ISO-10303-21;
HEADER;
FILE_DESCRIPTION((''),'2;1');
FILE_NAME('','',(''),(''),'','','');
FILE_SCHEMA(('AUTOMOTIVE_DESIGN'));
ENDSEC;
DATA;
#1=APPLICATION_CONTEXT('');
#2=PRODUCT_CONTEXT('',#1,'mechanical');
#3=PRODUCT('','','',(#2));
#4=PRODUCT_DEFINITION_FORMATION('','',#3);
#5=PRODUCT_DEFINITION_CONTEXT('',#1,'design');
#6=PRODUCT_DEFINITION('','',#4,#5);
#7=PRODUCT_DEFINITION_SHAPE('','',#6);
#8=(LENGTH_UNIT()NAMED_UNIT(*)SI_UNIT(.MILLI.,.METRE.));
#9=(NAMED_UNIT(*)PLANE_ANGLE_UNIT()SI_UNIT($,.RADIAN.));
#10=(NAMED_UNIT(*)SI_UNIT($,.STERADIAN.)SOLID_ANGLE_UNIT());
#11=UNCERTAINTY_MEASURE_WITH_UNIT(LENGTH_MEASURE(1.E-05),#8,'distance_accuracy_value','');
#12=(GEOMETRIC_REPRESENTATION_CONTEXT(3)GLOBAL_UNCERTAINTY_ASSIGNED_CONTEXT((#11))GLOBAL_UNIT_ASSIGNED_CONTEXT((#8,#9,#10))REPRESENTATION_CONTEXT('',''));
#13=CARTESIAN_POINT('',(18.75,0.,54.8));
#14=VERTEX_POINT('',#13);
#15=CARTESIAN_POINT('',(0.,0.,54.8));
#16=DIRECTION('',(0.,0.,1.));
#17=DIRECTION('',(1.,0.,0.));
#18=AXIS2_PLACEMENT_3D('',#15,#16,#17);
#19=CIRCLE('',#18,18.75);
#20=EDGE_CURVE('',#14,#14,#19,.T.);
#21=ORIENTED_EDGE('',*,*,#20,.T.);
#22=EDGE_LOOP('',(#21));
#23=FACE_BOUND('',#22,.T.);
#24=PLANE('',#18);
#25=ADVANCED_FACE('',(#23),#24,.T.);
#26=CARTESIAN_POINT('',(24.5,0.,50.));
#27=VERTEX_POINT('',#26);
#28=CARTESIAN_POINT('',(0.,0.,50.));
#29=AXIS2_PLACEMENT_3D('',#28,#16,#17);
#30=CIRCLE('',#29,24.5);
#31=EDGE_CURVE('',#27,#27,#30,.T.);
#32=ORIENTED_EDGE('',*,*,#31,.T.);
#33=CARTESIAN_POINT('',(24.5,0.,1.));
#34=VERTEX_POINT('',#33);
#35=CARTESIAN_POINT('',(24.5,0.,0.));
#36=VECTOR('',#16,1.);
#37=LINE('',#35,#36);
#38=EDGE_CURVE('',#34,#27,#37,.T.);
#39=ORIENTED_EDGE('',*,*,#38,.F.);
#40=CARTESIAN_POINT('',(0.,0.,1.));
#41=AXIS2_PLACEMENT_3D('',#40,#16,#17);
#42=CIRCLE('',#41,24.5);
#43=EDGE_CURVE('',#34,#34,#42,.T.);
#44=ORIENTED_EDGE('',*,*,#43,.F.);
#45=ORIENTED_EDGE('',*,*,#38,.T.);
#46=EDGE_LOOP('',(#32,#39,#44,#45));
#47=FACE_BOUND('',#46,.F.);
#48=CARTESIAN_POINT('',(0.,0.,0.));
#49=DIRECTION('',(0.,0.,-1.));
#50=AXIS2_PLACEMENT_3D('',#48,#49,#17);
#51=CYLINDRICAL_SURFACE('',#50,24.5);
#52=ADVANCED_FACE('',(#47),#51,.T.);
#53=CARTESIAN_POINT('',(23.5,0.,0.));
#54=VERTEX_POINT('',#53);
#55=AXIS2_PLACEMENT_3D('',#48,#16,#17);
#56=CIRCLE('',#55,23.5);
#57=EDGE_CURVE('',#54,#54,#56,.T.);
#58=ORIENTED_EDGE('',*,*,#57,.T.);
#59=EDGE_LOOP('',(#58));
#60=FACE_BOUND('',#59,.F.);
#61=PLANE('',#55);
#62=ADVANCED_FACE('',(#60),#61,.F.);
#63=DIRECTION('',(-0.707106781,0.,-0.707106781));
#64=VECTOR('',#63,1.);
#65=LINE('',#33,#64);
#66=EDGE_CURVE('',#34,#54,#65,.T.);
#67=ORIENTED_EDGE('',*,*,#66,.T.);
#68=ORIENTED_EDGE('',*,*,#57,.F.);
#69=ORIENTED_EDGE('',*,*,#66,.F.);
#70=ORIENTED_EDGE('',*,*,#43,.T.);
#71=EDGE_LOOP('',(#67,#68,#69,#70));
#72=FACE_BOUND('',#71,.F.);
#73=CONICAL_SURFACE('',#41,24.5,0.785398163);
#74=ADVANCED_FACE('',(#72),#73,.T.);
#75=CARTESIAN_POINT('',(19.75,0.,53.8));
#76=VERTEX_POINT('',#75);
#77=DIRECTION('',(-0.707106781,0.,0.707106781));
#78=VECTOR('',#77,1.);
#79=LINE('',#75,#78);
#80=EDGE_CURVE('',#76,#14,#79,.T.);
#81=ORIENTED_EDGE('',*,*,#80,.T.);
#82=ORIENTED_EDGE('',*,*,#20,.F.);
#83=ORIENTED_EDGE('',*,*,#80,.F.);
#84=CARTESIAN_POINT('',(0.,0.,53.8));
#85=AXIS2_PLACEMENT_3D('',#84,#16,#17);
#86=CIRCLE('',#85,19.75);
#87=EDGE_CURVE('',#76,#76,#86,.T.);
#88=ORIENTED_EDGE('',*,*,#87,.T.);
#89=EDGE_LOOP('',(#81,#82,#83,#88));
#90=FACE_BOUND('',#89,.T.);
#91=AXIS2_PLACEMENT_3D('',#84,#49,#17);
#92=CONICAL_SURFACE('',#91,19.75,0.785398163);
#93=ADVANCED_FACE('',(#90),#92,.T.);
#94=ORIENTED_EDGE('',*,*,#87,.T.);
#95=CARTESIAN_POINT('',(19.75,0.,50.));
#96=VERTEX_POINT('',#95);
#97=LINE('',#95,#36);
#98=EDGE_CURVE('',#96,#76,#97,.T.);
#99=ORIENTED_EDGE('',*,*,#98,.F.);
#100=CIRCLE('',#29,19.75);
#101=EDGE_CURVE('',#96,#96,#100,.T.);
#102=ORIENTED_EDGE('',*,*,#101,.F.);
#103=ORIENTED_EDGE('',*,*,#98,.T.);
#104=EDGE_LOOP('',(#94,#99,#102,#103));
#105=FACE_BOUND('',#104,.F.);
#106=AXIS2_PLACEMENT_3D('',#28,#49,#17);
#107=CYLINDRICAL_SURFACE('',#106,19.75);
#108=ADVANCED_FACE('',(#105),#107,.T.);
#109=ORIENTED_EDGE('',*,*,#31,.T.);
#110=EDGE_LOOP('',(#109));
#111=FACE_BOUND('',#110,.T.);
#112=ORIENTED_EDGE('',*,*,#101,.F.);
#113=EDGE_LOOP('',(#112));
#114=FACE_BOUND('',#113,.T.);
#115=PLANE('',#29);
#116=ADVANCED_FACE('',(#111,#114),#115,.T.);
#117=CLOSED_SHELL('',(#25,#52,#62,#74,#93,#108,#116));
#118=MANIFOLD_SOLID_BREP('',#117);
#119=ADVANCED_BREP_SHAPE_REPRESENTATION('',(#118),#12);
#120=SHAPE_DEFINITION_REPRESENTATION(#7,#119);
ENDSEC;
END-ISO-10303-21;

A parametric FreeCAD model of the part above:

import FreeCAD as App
import Part
import Sketcher

V = App.Vector


def edges_at(feature, points):
    """Names of the edges that pass closest to the given points."""
    edges = feature.Shape.Edges
    near = lambda p: min(range(len(edges)), key=lambda i: edges[i].distToShape(Part.Vertex(*p))[0])
    return sorted({f"Edge{near(p) + 1}" for p in points})

doc = App.newDocument("Part")
body = doc.addObject("PartDesign::Body", "Body")

sketch1 = body.newObject("Sketcher::SketchObject", "Sketch")
sketch1.AttachmentSupport = (doc.getObject("XY_Plane"), [""])
sketch1.MapMode = "FlatFace"
sketch1.addGeometry(Part.Circle(V(0, 0, 0), V(0, 0, 1), 24), False)
sketch1.addConstraint(Sketcher.Constraint("Coincident", 0, 3, -1, 1))
sketch1.addConstraint(Sketcher.Constraint("Diameter", 0, 49.0))
pad1 = body.newObject("PartDesign::Pad", "Pad")
pad1.Profile = sketch1
pad1.Length = 50

sketch2 = body.newObject("Sketcher::SketchObject", "Sketch001")
sketch2.AttachmentSupport = (doc.getObject("XY_Plane"), [""])
sketch2.MapMode = "FlatFace"
sketch2.AttachmentOffset = App.Placement(V(0, 0, 50), App.Rotation())
sketch2.addGeometry(Part.Circle(V(0, 0, 0), V(0, 0, 1), 20), False)
sketch2.addConstraint(Sketcher.Constraint("Coincident", 0, 3, -1, 1))
sketch2.addConstraint(Sketcher.Constraint("Diameter", 0, 39.5))
pad2 = body.newObject("PartDesign::Pad", "Pad001")
pad2.Profile = sketch2
pad2.Length = 4.8
doc.recompute()

chamfer = body.newObject("PartDesign::Chamfer", "Chamfer")
chamfer.Base = (pad2, edges_at(pad2, [(-24.5, 0, 0), (-19.75, 0, 54.8)]))
chamfer.Size = 1

doc.recompute()
